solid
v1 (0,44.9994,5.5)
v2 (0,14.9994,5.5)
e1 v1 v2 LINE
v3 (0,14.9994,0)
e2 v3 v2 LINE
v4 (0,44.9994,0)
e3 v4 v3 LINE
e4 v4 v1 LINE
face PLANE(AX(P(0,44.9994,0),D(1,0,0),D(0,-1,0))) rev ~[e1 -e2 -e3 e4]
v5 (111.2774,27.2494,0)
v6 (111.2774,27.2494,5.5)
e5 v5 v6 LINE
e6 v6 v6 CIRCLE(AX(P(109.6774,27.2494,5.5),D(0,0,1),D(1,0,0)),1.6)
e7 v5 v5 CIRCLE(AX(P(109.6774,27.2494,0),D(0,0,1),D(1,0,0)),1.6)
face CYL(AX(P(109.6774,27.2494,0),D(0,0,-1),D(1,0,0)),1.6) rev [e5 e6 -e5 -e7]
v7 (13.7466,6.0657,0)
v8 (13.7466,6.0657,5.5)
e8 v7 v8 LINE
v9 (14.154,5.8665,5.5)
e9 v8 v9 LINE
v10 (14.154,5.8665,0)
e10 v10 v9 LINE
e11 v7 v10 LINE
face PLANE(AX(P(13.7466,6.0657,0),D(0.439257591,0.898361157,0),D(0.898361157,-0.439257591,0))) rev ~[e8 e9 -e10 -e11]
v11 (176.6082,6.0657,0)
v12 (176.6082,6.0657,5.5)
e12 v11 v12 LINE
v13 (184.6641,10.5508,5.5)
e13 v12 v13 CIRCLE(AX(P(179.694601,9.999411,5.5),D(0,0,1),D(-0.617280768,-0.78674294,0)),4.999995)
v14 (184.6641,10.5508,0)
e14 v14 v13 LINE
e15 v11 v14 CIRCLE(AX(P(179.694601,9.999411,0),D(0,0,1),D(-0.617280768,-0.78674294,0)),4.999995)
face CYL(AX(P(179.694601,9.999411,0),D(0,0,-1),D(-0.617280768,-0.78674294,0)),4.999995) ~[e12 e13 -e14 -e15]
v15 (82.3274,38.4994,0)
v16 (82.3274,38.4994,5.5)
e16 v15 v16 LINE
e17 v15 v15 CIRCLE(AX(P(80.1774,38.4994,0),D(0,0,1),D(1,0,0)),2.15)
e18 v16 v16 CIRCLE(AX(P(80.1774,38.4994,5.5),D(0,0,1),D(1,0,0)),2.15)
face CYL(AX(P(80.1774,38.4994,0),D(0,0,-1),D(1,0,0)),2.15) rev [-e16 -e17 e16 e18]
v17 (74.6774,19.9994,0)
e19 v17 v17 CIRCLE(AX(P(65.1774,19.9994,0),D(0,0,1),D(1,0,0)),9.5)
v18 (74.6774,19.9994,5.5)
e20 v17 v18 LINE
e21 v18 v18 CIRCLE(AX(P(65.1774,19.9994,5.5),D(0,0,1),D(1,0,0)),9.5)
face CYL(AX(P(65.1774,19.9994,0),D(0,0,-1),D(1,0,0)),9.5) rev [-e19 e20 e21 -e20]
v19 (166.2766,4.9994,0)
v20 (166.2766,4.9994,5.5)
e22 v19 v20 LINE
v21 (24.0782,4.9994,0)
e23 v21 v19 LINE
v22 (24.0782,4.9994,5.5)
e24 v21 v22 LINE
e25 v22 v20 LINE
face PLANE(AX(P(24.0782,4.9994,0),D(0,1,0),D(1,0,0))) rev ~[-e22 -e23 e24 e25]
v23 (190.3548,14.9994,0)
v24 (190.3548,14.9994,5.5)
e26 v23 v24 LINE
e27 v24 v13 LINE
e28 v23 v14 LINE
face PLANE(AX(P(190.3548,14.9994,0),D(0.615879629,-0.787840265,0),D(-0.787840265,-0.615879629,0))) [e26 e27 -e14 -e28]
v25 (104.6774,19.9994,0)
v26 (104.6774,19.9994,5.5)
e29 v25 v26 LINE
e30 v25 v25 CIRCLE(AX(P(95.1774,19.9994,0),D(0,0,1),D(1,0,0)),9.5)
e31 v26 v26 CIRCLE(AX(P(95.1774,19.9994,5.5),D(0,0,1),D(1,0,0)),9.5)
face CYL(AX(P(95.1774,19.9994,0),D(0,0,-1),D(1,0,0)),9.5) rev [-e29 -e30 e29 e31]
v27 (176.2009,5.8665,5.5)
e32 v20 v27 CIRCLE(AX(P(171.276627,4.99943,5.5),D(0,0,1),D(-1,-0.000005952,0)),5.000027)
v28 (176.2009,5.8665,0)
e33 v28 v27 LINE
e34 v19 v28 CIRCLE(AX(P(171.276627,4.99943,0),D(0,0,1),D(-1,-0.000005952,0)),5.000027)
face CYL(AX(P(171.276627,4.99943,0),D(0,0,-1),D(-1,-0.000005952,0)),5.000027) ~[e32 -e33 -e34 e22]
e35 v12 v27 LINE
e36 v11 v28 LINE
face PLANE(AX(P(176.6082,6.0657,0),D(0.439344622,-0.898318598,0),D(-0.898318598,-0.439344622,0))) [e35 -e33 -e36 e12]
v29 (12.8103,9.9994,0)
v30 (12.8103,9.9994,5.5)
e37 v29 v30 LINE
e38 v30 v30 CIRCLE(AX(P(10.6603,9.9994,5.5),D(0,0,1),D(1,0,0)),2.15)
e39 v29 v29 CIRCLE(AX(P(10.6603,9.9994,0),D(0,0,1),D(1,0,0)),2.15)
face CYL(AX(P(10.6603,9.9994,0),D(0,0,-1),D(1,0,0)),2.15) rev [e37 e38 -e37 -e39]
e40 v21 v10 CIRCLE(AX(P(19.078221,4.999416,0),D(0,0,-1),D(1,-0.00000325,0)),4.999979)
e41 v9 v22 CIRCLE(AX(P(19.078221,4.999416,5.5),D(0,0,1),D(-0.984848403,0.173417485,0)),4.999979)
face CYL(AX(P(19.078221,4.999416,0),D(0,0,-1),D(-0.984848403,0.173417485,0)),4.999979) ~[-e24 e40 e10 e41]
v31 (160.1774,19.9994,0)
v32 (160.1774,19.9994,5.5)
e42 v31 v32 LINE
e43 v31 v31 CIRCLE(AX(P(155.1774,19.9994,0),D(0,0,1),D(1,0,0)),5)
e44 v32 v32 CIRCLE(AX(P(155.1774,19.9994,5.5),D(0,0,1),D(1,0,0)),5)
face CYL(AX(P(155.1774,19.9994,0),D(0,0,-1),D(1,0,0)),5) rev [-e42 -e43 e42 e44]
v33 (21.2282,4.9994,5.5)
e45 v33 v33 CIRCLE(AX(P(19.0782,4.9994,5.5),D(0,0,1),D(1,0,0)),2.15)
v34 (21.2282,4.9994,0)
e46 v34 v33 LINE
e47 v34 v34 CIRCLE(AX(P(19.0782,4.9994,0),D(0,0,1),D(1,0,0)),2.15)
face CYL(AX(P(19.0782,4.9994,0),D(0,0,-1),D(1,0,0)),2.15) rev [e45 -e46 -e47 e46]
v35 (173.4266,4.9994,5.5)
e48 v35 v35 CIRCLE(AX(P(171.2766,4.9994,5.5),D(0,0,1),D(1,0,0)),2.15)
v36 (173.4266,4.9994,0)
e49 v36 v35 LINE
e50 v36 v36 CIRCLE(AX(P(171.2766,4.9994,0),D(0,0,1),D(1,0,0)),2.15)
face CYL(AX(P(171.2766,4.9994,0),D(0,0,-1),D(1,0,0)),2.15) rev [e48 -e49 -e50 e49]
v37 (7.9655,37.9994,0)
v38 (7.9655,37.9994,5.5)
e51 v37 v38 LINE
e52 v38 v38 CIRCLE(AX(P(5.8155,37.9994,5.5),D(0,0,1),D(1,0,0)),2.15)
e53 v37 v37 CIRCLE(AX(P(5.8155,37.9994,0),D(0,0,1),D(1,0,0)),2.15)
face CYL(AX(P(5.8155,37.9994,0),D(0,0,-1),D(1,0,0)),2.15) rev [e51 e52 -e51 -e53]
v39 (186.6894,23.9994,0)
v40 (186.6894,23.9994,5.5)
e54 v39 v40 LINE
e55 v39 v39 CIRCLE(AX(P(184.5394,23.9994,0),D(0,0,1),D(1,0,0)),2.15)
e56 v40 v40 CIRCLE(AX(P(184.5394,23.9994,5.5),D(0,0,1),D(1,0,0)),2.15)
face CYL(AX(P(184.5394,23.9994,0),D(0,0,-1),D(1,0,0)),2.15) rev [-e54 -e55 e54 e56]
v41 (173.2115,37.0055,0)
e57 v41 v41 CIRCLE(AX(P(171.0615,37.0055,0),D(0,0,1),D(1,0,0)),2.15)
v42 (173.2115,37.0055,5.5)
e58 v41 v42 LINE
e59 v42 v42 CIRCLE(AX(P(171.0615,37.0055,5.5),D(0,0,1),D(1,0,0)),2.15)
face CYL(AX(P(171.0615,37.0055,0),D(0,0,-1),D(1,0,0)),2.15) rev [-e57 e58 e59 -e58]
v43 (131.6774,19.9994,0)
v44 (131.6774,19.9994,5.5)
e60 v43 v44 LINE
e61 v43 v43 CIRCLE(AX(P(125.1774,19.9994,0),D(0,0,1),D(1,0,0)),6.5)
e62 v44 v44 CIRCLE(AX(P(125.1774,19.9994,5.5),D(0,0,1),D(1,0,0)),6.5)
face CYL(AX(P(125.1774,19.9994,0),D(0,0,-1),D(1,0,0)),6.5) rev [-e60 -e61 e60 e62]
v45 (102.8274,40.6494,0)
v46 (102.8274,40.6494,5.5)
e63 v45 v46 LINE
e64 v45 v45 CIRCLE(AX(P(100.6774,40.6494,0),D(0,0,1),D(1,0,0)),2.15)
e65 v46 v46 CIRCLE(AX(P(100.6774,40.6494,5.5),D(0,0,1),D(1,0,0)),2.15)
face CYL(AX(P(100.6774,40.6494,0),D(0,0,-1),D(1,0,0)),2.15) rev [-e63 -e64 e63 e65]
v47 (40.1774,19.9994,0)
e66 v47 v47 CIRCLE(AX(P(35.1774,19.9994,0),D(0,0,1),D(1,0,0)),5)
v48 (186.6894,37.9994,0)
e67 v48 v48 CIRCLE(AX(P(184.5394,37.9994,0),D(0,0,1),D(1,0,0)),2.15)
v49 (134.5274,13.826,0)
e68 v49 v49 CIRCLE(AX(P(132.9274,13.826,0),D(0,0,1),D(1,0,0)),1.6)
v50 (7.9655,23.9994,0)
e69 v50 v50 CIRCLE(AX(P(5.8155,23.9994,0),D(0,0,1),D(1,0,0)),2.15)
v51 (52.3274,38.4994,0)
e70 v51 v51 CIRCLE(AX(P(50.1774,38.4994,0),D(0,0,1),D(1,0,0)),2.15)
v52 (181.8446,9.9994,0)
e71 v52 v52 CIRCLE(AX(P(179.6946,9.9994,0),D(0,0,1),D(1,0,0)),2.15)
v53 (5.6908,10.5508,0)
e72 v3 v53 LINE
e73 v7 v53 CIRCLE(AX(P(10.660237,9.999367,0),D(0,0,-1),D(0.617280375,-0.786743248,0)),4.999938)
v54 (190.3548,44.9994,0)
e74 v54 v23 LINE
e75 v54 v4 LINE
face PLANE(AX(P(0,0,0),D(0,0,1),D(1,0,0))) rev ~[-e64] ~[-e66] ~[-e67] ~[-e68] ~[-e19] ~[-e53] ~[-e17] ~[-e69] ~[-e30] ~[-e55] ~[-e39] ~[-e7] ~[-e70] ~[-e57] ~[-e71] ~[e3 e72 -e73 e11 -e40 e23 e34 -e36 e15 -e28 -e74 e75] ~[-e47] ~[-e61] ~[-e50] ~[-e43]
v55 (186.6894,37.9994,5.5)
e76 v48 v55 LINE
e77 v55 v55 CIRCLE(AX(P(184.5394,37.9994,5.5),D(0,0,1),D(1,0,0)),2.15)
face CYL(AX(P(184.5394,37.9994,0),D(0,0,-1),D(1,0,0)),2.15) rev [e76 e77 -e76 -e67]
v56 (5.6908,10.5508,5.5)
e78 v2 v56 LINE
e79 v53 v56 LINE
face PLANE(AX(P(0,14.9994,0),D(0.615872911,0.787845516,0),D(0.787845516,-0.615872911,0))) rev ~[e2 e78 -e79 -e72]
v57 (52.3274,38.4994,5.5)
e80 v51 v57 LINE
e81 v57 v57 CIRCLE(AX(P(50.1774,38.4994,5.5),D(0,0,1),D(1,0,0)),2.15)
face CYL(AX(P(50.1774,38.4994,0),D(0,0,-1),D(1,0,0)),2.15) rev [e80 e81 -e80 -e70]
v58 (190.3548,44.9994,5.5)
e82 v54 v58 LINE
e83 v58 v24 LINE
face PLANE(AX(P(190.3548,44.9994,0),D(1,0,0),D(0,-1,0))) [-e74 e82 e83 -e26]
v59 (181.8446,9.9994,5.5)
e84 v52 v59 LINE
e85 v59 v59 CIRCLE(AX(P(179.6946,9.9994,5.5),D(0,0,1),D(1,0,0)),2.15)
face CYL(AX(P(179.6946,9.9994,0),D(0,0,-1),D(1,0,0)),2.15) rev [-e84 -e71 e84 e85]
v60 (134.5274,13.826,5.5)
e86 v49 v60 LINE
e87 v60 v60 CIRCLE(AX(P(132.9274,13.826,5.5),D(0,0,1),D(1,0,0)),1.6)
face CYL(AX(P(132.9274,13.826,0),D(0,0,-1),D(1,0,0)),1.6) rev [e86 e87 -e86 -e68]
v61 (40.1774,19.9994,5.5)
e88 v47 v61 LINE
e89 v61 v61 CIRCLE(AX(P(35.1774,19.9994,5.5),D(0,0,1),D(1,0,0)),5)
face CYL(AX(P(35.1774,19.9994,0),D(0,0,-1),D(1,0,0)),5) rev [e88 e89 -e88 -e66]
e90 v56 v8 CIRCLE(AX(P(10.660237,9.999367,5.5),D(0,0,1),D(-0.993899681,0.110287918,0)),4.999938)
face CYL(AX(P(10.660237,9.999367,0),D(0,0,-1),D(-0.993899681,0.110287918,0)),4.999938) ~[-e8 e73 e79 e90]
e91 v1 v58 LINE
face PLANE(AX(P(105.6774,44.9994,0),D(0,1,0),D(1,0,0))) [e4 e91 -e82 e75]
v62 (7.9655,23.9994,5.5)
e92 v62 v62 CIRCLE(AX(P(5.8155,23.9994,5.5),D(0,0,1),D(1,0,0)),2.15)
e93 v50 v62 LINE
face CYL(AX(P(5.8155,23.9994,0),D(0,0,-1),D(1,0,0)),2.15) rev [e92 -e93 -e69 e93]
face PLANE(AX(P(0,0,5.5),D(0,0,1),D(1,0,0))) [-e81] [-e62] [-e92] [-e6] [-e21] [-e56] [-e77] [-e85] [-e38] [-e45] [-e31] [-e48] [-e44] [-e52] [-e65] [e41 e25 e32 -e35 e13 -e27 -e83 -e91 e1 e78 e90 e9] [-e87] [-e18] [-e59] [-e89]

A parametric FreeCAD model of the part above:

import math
import FreeCAD as App
import Part
import Sketcher

doc = App.newDocument("Part")
body = doc.addObject("PartDesign::Body", "Body")

sketch1 = body.newObject("Sketcher::SketchObject", "Sketch")
sketch1.AttachmentSupport = (doc.getObject("XY_Plane"), [""])
sketch1.MapMode = "FlatFace"
sketch1.addGeometry([
    Part.LineSegment(App.Vector(0, 45, 0), App.Vector(0, 15, 0)),
    Part.LineSegment(App.Vector(0, 15, 0), App.Vector(5.69, 10.55, 0)),
    Part.ArcOfCircle(Part.Circle(App.Vector(10.66, 10, 0), App.Vector(0, 0, 1), 5), math.radians(174), math.radians(308)),
    Part.LineSegment(App.Vector(13.75, 6.07, 0), App.Vector(14.15, 5.87, 0)),
    Part.ArcOfCircle(Part.Circle(App.Vector(19.08, 5, 0), App.Vector(0, 0, 1), 5), math.radians(170), math.radians(360)),
    Part.LineSegment(App.Vector(24.08, 5, 0), App.Vector(166.28, 5, 0)),
    Part.ArcOfCircle(Part.Circle(App.Vector(171.28, 5, 0), App.Vector(0, 0, 1), 5), math.radians(180), math.radians(370)),
    Part.LineSegment(App.Vector(176.2, 5.87, 0), App.Vector(176.61, 6.07, 0)),
    Part.ArcOfCircle(Part.Circle(App.Vector(179.69, 10, 0), App.Vector(0, 0, 1), 5), math.radians(-128), math.radians(6)),
    Part.LineSegment(App.Vector(184.66, 10.55, 0), App.Vector(190.35, 15, 0)),
    Part.LineSegment(App.Vector(190.35, 15, 0), App.Vector(190.35, 45, 0)),
    Part.LineSegment(App.Vector(190.35, 45, 0), App.Vector(0, 45, 0)),
    Part.Circle(App.Vector(132.93, 13.83, 0), App.Vector(0, 0, 1), 1.6),
    Part.Circle(App.Vector(125.18, 20, 0), App.Vector(0, 0, 1), 6.5),
    Part.Circle(App.Vector(109.68, 27.25, 0), App.Vector(0, 0, 1), 1.6),
    Part.Circle(App.Vector(100.68, 40.65, 0), App.Vector(0, 0, 1), 2.15),
    Part.Circle(App.Vector(171.06, 37.01, 0), App.Vector(0, 0, 1), 2.15),
    Part.Circle(App.Vector(184.54, 38, 0), App.Vector(0, 0, 1), 2.15),
    Part.Circle(App.Vector(19.08, 5, 0), App.Vector(0, 0, 1), 2.15),
    Part.Circle(App.Vector(10.66, 10, 0), App.Vector(0, 0, 1), 2.15),
    Part.Circle(App.Vector(5.82, 24, 0), App.Vector(0, 0, 1), 2.15),
    Part.Circle(App.Vector(35.18, 20, 0), App.Vector(0, 0, 1), 5),
    Part.Circle(App.Vector(65.18, 20, 0), App.Vector(0, 0, 1), 9.5),
    Part.Circle(App.Vector(95.18, 20, 0), App.Vector(0, 0, 1), 9.5),
    Part.Circle(App.Vector(171.28, 5, 0), App.Vector(0, 0, 1), 2.15),
    Part.Circle(App.Vector(179.69, 10, 0), App.Vector(0, 0, 1), 2.15),
    Part.Circle(App.Vector(155.18, 20, 0), App.Vector(0, 0, 1), 5),
    Part.Circle(App.Vector(184.54, 24, 0), App.Vector(0, 0, 1), 2.15),
    Part.Circle(App.Vector(5.82, 38, 0), App.Vector(0, 0, 1), 2.15),
    Part.Circle(App.Vector(50.18, 38.5, 0), App.Vector(0, 0, 1), 2.15),
    Part.Circle(App.Vector(80.18, 38.5, 0), App.Vector(0, 0, 1), 2.15),
], False)
sketch1.addConstraint([
    Sketcher.Constraint("Coincident", 0, 2, 1, 1),
    Sketcher.Constraint("Coincident", 1, 2, 2, 1),
    Sketcher.Constraint("Coincident", 2, 2, 3, 1),
    Sketcher.Constraint("Coincident", 3, 2, 4, 1),
    Sketcher.Constraint("Coincident", 4, 2, 5, 1),
    Sketcher.Constraint("Coincident", 5, 2, 6, 1),
    Sketcher.Constraint("Coincident", 6, 2, 7, 1),
    Sketcher.Constraint("Coincident", 7, 2, 8, 1),
    Sketcher.Constraint("Coincident", 8, 2, 9, 1),
    Sketcher.Constraint("Coincident", 9, 2, 10, 1),
    Sketcher.Constraint("Coincident", 10, 2, 11, 1),
    Sketcher.Constraint("Coincident", 11, 2, 0, 1),
    Sketcher.Constraint("Vertical", 0),
    Sketcher.Constraint("Horizontal", 5),
    Sketcher.Constraint("Vertical", 10),
    Sketcher.Constraint("Horizontal", 11),
    Sketcher.Constraint("Coincident", 18, 3, 4, 3),
    Sketcher.Constraint("Coincident", 19, 3, 2, 3),
    Sketcher.Constraint("Coincident", 24, 3, 6, 3),
    Sketcher.Constraint("Coincident", 25, 3, 8, 3),
    Sketcher.Constraint("Equal", 2, 4),
    Sketcher.Constraint("Equal", 4, 6),
    Sketcher.Constraint("Equal", 6, 8),
    Sketcher.Constraint("Equal", 12, 14),
    Sketcher.Constraint("Equal", 15, 16),
    Sketcher.Constraint("Equal", 16, 17),
    Sketcher.Constraint("Equal", 17, 18),
    Sketcher.Constraint("Equal", 18, 19),
    Sketcher.Constraint("Equal", 19, 20),
    Sketcher.Constraint("Equal", 8, 21),
    Sketcher.Constraint("Equal", 22, 23),
    Sketcher.Constraint("Equal", 20, 24),
    Sketcher.Constraint("Equal", 24, 25),
    Sketcher.Constraint("Equal", 21, 26),
    Sketcher.Constraint("Equal", 25, 27),
    Sketcher.Constraint("Equal", 27, 28),
    Sketcher.Constraint("Equal", 28, 29),
    Sketcher.Constraint("Equal", 29, 30),
    Sketcher.Constraint("PointOnObject", 0, 2, -2),
    Sketcher.Constraint("Horizontal", 4, 3, 6, 3),
    Sketcher.Constraint("Horizontal", 2, 3, 8, 3),
    Sketcher.Constraint("Horizontal", 13, 3, 21, 3),
    Sketcher.Constraint("Horizontal", 21, 3, 22, 3),
    Sketcher.Constraint("Horizontal", 22, 3, 23, 3),
    Sketcher.Constraint("Horizontal", 23, 3, 26, 3),
    Sketcher.Constraint("Horizontal", 20, 3, 27, 3),
    Sketcher.Constraint("Horizontal", 17, 3, 28, 3),
    Sketcher.Constraint("Horizontal", 29, 3, 30, 3),
    Sketcher.Constraint("Horizontal", 24, 3, 4, 2),
    Sketcher.Constraint("Horizontal", 3, 2, 6, 2),
    Sketcher.Constraint("Horizontal", 2, 2, 7, 2),
    Sketcher.Constraint("Horizontal", 1, 2, 8, 2),
    Sketcher.Constraint("Horizontal", 0, 2, 9, 2),
    Sketcher.Constraint("Vertical", 17, 3, 27, 3),
    Sketcher.Constraint("Vertical", 20, 3, 28, 3),
    Sketcher.Constraint("Equal", 3, 7),
    Sketcher.Constraint("Equal", 1, 9),
    Sketcher.Constraint("Diameter", 21, 10.0),
    Sketcher.Constraint("Diameter", 22, 19.0),
    Sketcher.Constraint("Diameter", 13, 13.0),
    Sketcher.Constraint("DistanceY", 8, 3, 13, 3, 10.0),
    Sketcher.Constraint("DistanceY", 4, 3, 20, 3, 19.0),
    Sketcher.Constraint("DistanceY", 4, 3, 0, 2, 10.0),
    Sketcher.Constraint("Diameter", 12, 3.2),
    Sketcher.Constraint("Diameter", 15, 4.3),
    Sketcher.Constraint("DistanceY", 0, 2, 0, 1, 30.0),
    Sketcher.Constraint("DistanceY", 4, 3, 2, 3, 5.0),
    Sketcher.Constraint("DistanceX", 15, 3, 14, 3, 9.0),
    Sketcher.Constraint("DistanceY", 8, 3, 17, 3, 28.0),
    Sketcher.Constraint("DistanceX", 21, 3, 22, 3, 30.0),
    Sketcher.Constraint("DistanceX", 23, 3, 13, 3, 30.0),
    Sketcher.Constraint("DistanceX", 22, 3, 23, 3, 30.0),
    Sketcher.Constraint("DistanceX", 21, 3, 29, 3, 15.0),
    Sketcher.Constraint("DistanceX", 22, 3, 30, 3, 15.0),
    Sketcher.Constraint("DistanceX", 14, 3, 13, 3, 15.5),
    Sketcher.Constraint("DistanceY", 14, 3, 15, 3, 13.4),
    Sketcher.Constraint("DistanceY", 21, 3, 29, 3, 18.5),
    Sketcher.Constraint("DistanceX", 13, 3, 12, 3, 7.75),
    Sketcher.Constraint("DistanceY", 13, 3, 14, 3, 7.25),
    Sketcher.Constraint("DistanceX", 12, 3, 26, 3, 22.25),
    Sketcher.Constraint("DistanceX", 5, 1, 5, 2, 142.1984),
    Sketcher.Constraint("DistanceX", 11, 2, 11, 1, 190.3548),
    Sketcher.Constraint("DistanceY", -1, 1, 12, 3, 13.826),
    Sketcher.Constraint("DistanceX", -1, 1, 3, 2, 14.154),
    Sketcher.Constraint("DistanceX", -1, 1, 8, 2, 184.664),
    Sketcher.Constraint("DistanceX", 2, 3, 4, 3, 8.418),
    Sketcher.Constraint("DistanceX", 2, 3, 12, 3, 122.267),
    Sketcher.Constraint("DistanceX", 16, 3, 8, 3, 8.633),
    Sketcher.Constraint("DistanceY", 8, 3, 16, 3, 27.006),
    Sketcher.Constraint("DistanceX", 16, 3, 17, 3, 13.478),
    Sketcher.Constraint("DistanceX", 20, 3, 15, 3, 94.862),
    Sketcher.Constraint("DistanceX", 7, 2, 8, 2, 8.056),
    Sketcher.Constraint("DistanceY", -1, 1, 2, 3, 9.9994),
])
pad1 = body.newObject("PartDesign::Pad", "Pad")
pad1.Profile = sketch1
pad1.Length = 5.5

doc.recompute()
